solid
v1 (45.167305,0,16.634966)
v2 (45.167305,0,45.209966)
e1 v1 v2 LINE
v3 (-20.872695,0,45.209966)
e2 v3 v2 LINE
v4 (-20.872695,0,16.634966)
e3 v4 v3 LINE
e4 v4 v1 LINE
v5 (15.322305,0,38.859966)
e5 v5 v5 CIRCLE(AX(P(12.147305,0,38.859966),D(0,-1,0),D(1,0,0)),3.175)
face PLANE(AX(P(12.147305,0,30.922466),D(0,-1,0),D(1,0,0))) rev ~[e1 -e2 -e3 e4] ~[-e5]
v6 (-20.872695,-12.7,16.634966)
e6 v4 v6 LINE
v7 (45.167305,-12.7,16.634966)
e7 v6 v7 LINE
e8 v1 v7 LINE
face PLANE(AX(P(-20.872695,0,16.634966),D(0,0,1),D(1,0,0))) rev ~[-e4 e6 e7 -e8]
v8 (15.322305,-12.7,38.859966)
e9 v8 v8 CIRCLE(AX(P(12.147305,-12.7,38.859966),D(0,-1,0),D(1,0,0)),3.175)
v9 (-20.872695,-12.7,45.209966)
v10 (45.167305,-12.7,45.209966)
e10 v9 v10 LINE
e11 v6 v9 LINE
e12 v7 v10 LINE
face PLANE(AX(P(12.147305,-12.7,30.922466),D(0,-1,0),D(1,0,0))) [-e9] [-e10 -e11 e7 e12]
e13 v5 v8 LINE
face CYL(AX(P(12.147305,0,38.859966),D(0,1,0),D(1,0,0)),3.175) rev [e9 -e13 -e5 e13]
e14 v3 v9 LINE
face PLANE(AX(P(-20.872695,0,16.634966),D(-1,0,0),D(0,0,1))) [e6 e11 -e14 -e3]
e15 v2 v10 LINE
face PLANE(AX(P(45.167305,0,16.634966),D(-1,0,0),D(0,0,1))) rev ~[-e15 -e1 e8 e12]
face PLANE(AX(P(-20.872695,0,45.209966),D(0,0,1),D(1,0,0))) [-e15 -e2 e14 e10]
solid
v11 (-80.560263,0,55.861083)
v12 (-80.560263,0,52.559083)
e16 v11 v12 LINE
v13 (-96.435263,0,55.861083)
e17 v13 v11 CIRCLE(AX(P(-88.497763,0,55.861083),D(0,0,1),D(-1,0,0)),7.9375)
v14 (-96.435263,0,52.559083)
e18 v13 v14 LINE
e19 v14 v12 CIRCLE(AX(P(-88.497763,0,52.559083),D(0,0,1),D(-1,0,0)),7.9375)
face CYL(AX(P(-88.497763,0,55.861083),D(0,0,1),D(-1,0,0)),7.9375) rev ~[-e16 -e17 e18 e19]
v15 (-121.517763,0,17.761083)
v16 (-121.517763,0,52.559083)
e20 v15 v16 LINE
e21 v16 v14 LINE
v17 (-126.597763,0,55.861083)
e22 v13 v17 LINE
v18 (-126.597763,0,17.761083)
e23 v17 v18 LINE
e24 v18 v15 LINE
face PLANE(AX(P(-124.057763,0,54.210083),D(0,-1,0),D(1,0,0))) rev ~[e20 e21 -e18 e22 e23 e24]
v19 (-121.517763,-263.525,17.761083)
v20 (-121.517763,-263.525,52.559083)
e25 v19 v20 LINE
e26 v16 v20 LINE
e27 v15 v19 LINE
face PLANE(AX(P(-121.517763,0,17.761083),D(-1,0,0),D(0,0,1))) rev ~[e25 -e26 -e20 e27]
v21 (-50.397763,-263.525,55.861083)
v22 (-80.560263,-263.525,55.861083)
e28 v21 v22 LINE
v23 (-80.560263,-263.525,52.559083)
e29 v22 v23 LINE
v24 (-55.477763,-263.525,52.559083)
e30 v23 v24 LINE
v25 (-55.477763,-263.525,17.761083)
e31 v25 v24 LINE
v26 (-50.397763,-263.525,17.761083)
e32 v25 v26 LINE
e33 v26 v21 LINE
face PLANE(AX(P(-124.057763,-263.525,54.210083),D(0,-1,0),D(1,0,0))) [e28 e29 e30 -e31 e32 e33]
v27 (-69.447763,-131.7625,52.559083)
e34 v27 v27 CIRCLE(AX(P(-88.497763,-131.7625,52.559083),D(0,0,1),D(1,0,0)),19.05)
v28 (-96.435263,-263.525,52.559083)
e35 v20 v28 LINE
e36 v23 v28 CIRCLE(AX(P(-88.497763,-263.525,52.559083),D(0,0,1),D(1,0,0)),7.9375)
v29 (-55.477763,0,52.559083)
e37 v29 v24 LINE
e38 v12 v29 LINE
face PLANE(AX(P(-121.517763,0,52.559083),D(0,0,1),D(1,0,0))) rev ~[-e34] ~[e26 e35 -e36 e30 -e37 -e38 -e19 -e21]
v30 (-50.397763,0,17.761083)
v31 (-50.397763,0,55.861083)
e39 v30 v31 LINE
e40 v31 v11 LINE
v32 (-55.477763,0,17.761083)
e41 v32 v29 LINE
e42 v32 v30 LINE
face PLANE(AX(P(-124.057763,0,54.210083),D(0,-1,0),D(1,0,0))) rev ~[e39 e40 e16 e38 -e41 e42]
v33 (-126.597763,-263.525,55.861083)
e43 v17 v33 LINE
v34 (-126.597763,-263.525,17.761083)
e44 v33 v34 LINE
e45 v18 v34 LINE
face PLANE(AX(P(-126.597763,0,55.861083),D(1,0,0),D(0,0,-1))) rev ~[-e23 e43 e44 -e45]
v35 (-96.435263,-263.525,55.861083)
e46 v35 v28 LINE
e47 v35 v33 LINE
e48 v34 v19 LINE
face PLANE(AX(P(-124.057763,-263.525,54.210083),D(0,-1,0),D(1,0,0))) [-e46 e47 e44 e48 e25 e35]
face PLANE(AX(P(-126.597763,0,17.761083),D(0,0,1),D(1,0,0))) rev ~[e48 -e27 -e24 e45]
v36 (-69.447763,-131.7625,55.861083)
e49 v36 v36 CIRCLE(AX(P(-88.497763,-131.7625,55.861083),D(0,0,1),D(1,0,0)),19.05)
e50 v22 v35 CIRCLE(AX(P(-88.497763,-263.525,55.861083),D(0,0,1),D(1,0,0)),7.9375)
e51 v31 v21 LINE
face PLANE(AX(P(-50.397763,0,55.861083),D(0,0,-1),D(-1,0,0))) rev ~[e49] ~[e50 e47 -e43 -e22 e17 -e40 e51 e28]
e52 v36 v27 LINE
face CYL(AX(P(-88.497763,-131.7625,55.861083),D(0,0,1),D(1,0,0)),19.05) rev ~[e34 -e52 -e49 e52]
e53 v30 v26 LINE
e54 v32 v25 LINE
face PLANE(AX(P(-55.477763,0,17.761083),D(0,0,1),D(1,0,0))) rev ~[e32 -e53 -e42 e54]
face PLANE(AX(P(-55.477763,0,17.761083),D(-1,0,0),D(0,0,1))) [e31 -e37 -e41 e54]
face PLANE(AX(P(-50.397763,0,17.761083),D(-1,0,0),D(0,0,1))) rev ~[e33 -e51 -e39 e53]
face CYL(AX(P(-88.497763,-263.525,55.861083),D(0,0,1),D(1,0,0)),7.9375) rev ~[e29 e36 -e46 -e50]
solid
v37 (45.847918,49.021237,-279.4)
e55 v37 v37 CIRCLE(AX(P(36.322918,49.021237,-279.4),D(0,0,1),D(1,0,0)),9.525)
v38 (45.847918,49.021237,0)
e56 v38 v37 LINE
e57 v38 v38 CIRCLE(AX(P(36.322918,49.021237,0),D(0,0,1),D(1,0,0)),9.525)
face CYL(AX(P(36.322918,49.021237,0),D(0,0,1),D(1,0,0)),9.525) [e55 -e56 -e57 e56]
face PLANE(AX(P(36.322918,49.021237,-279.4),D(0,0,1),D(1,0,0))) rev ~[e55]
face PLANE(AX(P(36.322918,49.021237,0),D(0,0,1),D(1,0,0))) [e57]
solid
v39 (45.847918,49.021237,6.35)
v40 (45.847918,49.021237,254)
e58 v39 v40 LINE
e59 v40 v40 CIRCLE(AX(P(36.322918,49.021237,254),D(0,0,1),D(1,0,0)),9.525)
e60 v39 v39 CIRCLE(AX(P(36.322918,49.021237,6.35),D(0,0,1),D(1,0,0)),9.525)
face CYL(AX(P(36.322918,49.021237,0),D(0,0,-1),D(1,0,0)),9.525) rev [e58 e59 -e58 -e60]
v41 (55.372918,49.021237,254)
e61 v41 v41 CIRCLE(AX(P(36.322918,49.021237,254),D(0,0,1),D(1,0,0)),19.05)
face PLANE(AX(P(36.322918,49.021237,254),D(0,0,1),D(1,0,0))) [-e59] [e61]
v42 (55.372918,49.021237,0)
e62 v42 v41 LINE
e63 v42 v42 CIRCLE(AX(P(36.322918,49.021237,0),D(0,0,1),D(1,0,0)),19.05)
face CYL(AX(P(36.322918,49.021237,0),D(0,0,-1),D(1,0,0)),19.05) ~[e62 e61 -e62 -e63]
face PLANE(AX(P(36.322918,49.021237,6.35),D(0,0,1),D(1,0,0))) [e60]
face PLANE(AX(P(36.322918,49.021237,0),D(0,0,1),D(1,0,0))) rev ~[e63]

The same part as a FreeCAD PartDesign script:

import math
import FreeCAD as App
import Part
import Sketcher

V = App.Vector
Q = App.Units.Quantity


def add_polygon(sketch, points):
    """Adds a closed chain of lines whose ends are joined by coincident constraints."""
    first, n = sketch.GeometryCount, len(points)
    for a, b in zip(points, points[1:] + points[:1]):
        sketch.addGeometry(Part.LineSegment(App.Vector(*a, 0), App.Vector(*b, 0)), False)
    for i in range(n):
        sketch.addConstraint(Sketcher.Constraint("Coincident", first + i, 2, first + (i + 1) % n, 1))

doc = App.newDocument("Part")
params = doc.addObject("Spreadsheet::Sheet", "Params")
for row, (alias, value) in enumerate([
    ("sketch1_width", "3 in"),
    ("sketch1_width2", "0.2 in"),
    ("sketch1_height", "1.5 in"),
    ("sketch1_height2", "1.37 in"),
    ("pad1_length", "10.375 in"),
    ("sketch2_diameter", "1.5 in"),
    ("sketch2_radius", "0.3125 in"),
    ("sketch3_diameter", "0.25 in"),
    ("sketch3_width", "2.6 in"),
    ("sketch3_height", "1.125 in"),
    ("pad2_length", "0.5 in"),
    ("sketch4_diameter", "1.5 in"),
    ("sketch4_diameter2", "0.75 in"),
    ("pad3_length", "10 in"),
    ("sketch5_diameter", "0.75 in"),
    ("pad4_length", "0.25 in"),
    ("sketch6_diameter", "0.75 in"),
    ("pad5_length", "11 in"),
], start=1):
    params.set(f"A{row}", alias)
    params.set(f"B{row}", "=" + value)
    params.setAlias(f"B{row}", alias)

body = doc.addObject("PartDesign::Body", "Body")

# Sketch on XZ plane
sketch1 = body.newObject("Sketcher::SketchObject", "Sketch")
sketch1.AttachmentSupport = (doc.getObject("XZ_Plane"), [""])
sketch1.MapMode = "FlatFace"
add_polygon(sketch1, [(-126.597763, 55.861083), (-126.597763, 17.761083), (-121.517764, 17.761083), (-121.517764, 52.559083), (-55.477764, 52.559083), (-55.477764, 17.761083), (-50.397764, 17.761083), (-50.397764, 55.861083)])  # lines 0-7
sketch1.addConstraint(Sketcher.Constraint("Vertical", 0))
sketch1.addConstraint(Sketcher.Constraint("Horizontal", 1))
sketch1.addConstraint(Sketcher.Constraint("Vertical", 2))
sketch1.addConstraint(Sketcher.Constraint("Horizontal", 3))
sketch1.addConstraint(Sketcher.Constraint("Vertical", 4))
sketch1.addConstraint(Sketcher.Constraint("Horizontal", 5))
sketch1.addConstraint(Sketcher.Constraint("Vertical", 6))
sketch1.addConstraint(Sketcher.Constraint("Horizontal", 7))
sketch1.addConstraint(Sketcher.Constraint("Horizontal", 1, 2, 4, 2))
sketch1.addConstraint(Sketcher.Constraint("Equal", 1, 5))
sketch1.addConstraint(Sketcher.Constraint("DistanceX", 7, 2, 7, 1, Q("3 in")))
sketch1.addConstraint(Sketcher.Constraint("DistanceX", 1, 1, 1, 2, Q("0.2 in")))
sketch1.addConstraint(Sketcher.Constraint("DistanceY", 0, 2, 0, 1, Q("1.5 in")))
sketch1.addConstraint(Sketcher.Constraint("DistanceY", 2, 1, 2, 2, Q("1.37 in")))
sketch1.addConstraint(Sketcher.Constraint("DistanceX", 0, 2, -1, 1, 126.597763))
sketch1.addConstraint(Sketcher.Constraint("DistanceY", -1, 1, 0, 2, 17.761083))
sketch1.setExpression("Constraints[18]", "Params.sketch1_width")
sketch1.setExpression("Constraints[19]", "Params.sketch1_width2")
sketch1.setExpression("Constraints[20]", "Params.sketch1_height")
sketch1.setExpression("Constraints[21]", "Params.sketch1_height2")
pad1 = body.newObject("PartDesign::Pad", "Pad")
pad1.Profile = sketch1
pad1.setExpression("Length", "Params.pad1_length")

# Sketch on XY plane
sketch2 = body.newObject("Sketcher::SketchObject", "Sketch001")
sketch2.AttachmentSupport = (doc.getObject("XY_Plane"), [""])
sketch2.MapMode = "FlatFace"
sketch2.AttachmentOffset = App.Placement(V(0, 0, 55.861083), App.Rotation())
sketch2.addGeometry(Part.Circle(V(-88.497764, -131.7625, 0), V(0, 0, 1), 19.05), False)
sketch2.addGeometry(Part.ArcOfCircle(Part.Circle(V(-88.497764, 0, 0), V(0, 0, 1), 7.9375), math.radians(180), math.radians(360)), False)
sketch2.addGeometry(Part.LineSegment(V(-80.560264, 0, 0), V(-96.435264, 0, 0)), False)
sketch2.addGeometry(Part.LineSegment(V(-96.435264, -263.525, 0), V(-80.560264, -263.525, 0)), False)
sketch2.addGeometry(Part.ArcOfCircle(Part.Circle(V(-88.497764, -263.525, 0), V(0, 0, 1), 7.9375), math.radians(0), math.radians(180)), False)
sketch2.addConstraint(Sketcher.Constraint("Coincident", 1, 1, 2, 2))
sketch2.addConstraint(Sketcher.Constraint("Coincident", 2, 1, 1, 2))
sketch2.addConstraint(Sketcher.Constraint("Coincident", 3, 1, 4, 2))
sketch2.addConstraint(Sketcher.Constraint("Coincident", 4, 1, 3, 2))
sketch2.addConstraint(Sketcher.Constraint("Horizontal", 2))
sketch2.addConstraint(Sketcher.Constraint("Horizontal", 3))
sketch2.addConstraint(Sketcher.Constraint("Equal", 1, 4))
sketch2.addConstraint(Sketcher.Constraint("PointOnObject", 1, 3, -1))
sketch2.addConstraint(Sketcher.Constraint("PointOnObject", 1, 1, -1))
sketch2.addConstraint(Sketcher.Constraint("Horizontal", 4, 3, 3, 1))
sketch2.addConstraint(Sketcher.Constraint("Vertical", 0, 3, 1, 3))
sketch2.addConstraint(Sketcher.Constraint("Vertical", 1, 3, 4, 3))
sketch2.addConstraint(Sketcher.Constraint("Diameter", 0, Q("1.5 in")))
sketch2.addConstraint(Sketcher.Constraint("Radius", 1, Q("0.3125 in")))
sketch2.addConstraint(Sketcher.Constraint("DistanceY", 0, 3, -1, 1, Q("5.1875 in")))
sketch2.addConstraint(Sketcher.Constraint("DistanceY", 4, 3, -1, 1, Q("10.375 in")))
sketch2.addConstraint(Sketcher.Constraint("DistanceX", 0, 3, -1, 1, 88.497764))
sketch2.setExpression("Constraints[12]", "Params.sketch2_diameter")
sketch2.setExpression("Constraints[13]", "Params.sketch2_radius")
pocket1 = body.newObject("PartDesign::Pocket", "Pocket")
pocket1.Profile = sketch2
pocket1.Type = "ThroughAll"
body2 = doc.addObject("PartDesign::Body", "Body001")

# Sketch on XZ plane
sketch3 = body2.newObject("Sketcher::SketchObject", "Sketch002")
sketch3.AttachmentSupport = (doc.getObject("XZ_Plane001"), [""])
sketch3.MapMode = "FlatFace"
add_polygon(sketch3, [(-20.872695, 45.209966), (-20.872695, 16.634966), (45.167305, 16.634966), (45.167305, 45.209966)])  # lines 0-3
sketch3.addGeometry(Part.Circle(V(12.147305, 38.859966, 0), V(0, 0, 1), 3.175), False)  # 4
sketch3.addConstraint(Sketcher.Constraint("Vertical", 0))
sketch3.addConstraint(Sketcher.Constraint("Horizontal", 1))
sketch3.addConstraint(Sketcher.Constraint("Vertical", 2))
sketch3.addConstraint(Sketcher.Constraint("Horizontal", 3))
sketch3.addConstraint(Sketcher.Constraint("Diameter", 4, Q("0.25 in")))
sketch3.addConstraint(Sketcher.Constraint("DistanceX", 1, 1, 1, 2, Q("2.6 in")))
sketch3.addConstraint(Sketcher.Constraint("DistanceX", 0, 2, 4, 3, Q("1.3 in")))
sketch3.addConstraint(Sketcher.Constraint("DistanceY", 0, 2, 0, 1, Q("1.125 in")))
sketch3.addConstraint(Sketcher.Constraint("DistanceY", 4, 3, 2, 2, Q("0.25 in")))
sketch3.addConstraint(Sketcher.Constraint("DistanceX", -1, 1, 4, 3, 12.147305))
sketch3.addConstraint(Sketcher.Constraint("DistanceY", -1, 1, 4, 3, 38.859966))
sketch3.setExpression("Constraints[8]", "Params.sketch3_diameter")
sketch3.setExpression("Constraints[9]", "Params.sketch3_width")
sketch3.setExpression("Constraints[11]", "Params.sketch3_height")
pad2 = body2.newObject("PartDesign::Pad", "Pad001")
pad2.Profile = sketch3
pad2.setExpression("Length", "Params.pad2_length")
body3 = doc.addObject("PartDesign::Body", "Body002")

# Sketch on XY plane
sketch4 = body3.newObject("Sketcher::SketchObject", "Sketch003")
sketch4.AttachmentSupport = (doc.getObject("XY_Plane002"), [""])
sketch4.MapMode = "FlatFace"
sketch4.addGeometry(Part.Circle(V(36.322918, 49.021237, 0), V(0, 0, 1), 19.05), False)
sketch4.addGeometry(Part.Circle(V(36.322918, 49.021237, 0), V(0, 0, 1), 9.525), False)
sketch4.addConstraint(Sketcher.Constraint("Coincident", 1, 3, 0, 3))
sketch4.addConstraint(Sketcher.Constraint("Diameter", 0, Q("1.5 in")))
sketch4.addConstraint(Sketcher.Constraint("Diameter", 1, Q("0.75 in")))
sketch4.addConstraint(Sketcher.Constraint("DistanceX", -1, 1, 0, 3, 36.322918))
sketch4.addConstraint(Sketcher.Constraint("DistanceY", -1, 1, 0, 3, 49.021237))
sketch4.setExpression("Constraints[1]", "Params.sketch4_diameter")
sketch4.setExpression("Constraints[2]", "Params.sketch4_diameter2")
pad3 = body3.newObject("PartDesign::Pad", "Pad002")
pad3.Profile = sketch4
pad3.setExpression("Length", "Params.pad3_length")

# Sketch on XY plane
sketch5 = body3.newObject("Sketcher::SketchObject", "Sketch004")
sketch5.AttachmentSupport = (doc.getObject("XY_Plane002"), [""])
sketch5.MapMode = "FlatFace"
sketch5.addGeometry(Part.Circle(V(36.322918, 49.021237, 0), V(0, 0, 1), 9.525), False)
sketch5.addConstraint(Sketcher.Constraint("Diameter", 0, Q("0.75 in")))
sketch5.addConstraint(Sketcher.Constraint("DistanceX", -1, 1, 0, 3, 36.322918))
sketch5.addConstraint(Sketcher.Constraint("DistanceY", -1, 1, 0, 3, 49.021237))
sketch5.setExpression("Constraints[0]", "Params.sketch5_diameter")
pad4 = body3.newObject("PartDesign::Pad", "Pad003")
pad4.Profile = sketch5
pad4.setExpression("Length", "Params.pad4_length")
body4 = doc.addObject("PartDesign::Body", "Body003")

# Sketch on XY plane
sketch6 = body4.newObject("Sketcher::SketchObject", "Sketch005")
sketch6.AttachmentSupport = (doc.getObject("XY_Plane003"), [""])
sketch6.MapMode = "FlatFace"
sketch6.addGeometry(Part.Circle(V(36.322918, 49.021237, 0), V(0, 0, 1), 9.525), False)
sketch6.addConstraint(Sketcher.Constraint("Diameter", 0, Q("0.75 in")))
sketch6.addConstraint(Sketcher.Constraint("DistanceX", -1, 1, 0, 3, 36.322918))
sketch6.addConstraint(Sketcher.Constraint("DistanceY", -1, 1, 0, 3, 49.021237))
sketch6.setExpression("Constraints[0]", "Params.sketch6_diameter")
pad5 = body4.newObject("PartDesign::Pad", "Pad004")
pad5.Profile = sketch6
pad5.setExpression("Length", "Params.pad5_length")
pad5.Reversed = True

doc.recompute()
